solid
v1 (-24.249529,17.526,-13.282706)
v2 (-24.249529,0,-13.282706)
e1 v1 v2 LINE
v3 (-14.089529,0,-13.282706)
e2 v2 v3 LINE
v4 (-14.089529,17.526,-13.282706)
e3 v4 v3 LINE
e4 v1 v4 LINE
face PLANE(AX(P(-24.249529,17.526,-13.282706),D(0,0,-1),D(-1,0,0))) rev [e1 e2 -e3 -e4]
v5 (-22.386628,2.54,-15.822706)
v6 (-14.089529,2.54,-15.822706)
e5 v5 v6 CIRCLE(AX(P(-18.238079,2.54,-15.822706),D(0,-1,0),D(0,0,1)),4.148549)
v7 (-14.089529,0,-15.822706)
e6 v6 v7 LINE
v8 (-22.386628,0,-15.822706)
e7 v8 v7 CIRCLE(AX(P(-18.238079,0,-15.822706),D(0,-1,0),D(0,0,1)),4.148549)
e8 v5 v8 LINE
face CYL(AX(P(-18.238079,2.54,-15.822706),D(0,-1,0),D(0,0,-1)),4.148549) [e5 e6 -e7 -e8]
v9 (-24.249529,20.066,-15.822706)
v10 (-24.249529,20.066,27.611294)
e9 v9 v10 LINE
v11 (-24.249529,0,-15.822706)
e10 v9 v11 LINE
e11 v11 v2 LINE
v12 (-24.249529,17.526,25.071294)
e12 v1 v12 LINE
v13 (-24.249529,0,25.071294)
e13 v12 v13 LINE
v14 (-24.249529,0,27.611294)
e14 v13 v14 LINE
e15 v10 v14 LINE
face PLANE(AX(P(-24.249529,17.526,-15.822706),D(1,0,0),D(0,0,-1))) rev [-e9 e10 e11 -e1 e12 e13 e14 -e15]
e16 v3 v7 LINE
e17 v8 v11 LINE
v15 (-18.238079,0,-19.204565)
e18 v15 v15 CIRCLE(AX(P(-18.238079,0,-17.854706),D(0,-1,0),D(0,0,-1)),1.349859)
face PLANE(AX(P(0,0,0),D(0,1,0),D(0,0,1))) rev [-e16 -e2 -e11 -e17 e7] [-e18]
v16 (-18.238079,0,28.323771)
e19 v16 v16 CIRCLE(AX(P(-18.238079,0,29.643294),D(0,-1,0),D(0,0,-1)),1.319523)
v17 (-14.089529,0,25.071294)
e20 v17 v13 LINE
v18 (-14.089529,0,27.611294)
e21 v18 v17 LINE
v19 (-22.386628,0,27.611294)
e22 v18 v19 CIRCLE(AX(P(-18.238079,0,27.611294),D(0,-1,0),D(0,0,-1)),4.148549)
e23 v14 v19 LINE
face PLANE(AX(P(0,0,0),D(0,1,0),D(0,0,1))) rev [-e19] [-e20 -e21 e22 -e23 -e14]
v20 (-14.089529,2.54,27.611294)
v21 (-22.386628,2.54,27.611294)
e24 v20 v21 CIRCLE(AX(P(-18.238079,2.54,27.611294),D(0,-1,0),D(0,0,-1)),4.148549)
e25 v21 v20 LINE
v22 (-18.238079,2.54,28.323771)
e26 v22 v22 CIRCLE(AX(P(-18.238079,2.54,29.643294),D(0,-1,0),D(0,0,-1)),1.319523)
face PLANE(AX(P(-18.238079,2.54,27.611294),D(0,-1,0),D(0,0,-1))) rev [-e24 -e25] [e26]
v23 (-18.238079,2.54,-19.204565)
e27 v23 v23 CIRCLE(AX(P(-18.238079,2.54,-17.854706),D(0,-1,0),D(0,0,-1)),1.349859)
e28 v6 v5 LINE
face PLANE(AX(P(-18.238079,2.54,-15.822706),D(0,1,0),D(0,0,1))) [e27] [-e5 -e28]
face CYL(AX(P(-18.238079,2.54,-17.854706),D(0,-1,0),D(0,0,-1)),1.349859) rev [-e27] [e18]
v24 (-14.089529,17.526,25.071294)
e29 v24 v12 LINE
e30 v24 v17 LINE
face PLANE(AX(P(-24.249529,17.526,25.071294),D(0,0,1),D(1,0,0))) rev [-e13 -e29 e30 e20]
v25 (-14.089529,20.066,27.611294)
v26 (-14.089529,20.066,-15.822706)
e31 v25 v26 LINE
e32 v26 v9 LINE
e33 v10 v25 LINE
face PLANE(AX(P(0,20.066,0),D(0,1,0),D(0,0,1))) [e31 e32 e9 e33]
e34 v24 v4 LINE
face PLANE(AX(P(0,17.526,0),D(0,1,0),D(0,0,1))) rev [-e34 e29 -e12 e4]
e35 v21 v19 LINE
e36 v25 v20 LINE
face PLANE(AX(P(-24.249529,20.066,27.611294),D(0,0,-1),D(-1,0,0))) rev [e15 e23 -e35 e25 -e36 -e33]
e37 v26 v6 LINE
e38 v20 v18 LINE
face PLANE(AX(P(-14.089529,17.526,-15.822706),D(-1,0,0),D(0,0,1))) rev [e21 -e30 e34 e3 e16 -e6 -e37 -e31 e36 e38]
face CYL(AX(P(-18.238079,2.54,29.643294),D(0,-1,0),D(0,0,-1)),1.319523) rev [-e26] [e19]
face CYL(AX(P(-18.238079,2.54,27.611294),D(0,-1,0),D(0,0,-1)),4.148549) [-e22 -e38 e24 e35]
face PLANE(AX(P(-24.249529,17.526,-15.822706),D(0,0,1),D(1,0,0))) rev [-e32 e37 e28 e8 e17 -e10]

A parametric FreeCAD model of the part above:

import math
import FreeCAD as App
import Part
import Sketcher
from FreeCAD import Vector
Q = App.Units.Quantity


def add_polygon(sketch, points):
    """Adds a closed chain of lines whose ends are joined by coincident constraints."""
    first, n = sketch.GeometryCount, len(points)
    for a, b in zip(points, points[1:] + points[:1]):
        sketch.addGeometry(Part.LineSegment(App.Vector(*a, 0), App.Vector(*b, 0)), False)
    for i in range(n):
        sketch.addConstraint(Sketcher.Constraint("Coincident", first + i, 2, first + (i + 1) % n, 1))

doc = App.newDocument("Part")
params = doc.addObject("Spreadsheet::Sheet", "Params")
for row, (alias, value) in enumerate([
    ("sketch1_width", "0.4 in"),
    ("sketch1_height", "0.1 in"),
    ("pad1_length", "0.69 in"),
    ("sketch2_width", "0.4 in"),
    ("sketch2_height", "0.1 in"),
    ("pad2_length", "0.69 in"),
    ("sketch3_width", "0.4 in"),
    ("sketch3_height", "1.71 in"),
    ("pad3_length", "0.1 in"),
    ("pad4_length", "0.1 in"),
], start=1):
    params.set(f"A{row}", alias)
    params.set(f"B{row}", "=" + value)
    params.setAlias(f"B{row}", alias)

body = doc.addObject("PartDesign::Body", "Body")

# Sketch on XZ plane
sketch1 = doc.addObject("Sketcher::SketchObject", "Sketch")
body.addObject(sketch1)
sketch1.AttachmentSupport = (doc.XZ_Plane, [""])
sketch1.MapMode = "FlatFace"
add_polygon(sketch1, [(-24.2, -15.8), (-24.2, -13.3), (-14.1, -13.3), (-14.1, -15.8)])  # lines 0-3
sketch1.addConstraint(Sketcher.Constraint("Vertical", 0))
sketch1.addConstraint(Sketcher.Constraint("Horizontal", 1))
sketch1.addConstraint(Sketcher.Constraint("Vertical", 2))
sketch1.addConstraint(Sketcher.Constraint("Horizontal", 3))
sketch1.addConstraint(Sketcher.Constraint("DistanceX", 1, 1, 1, 2, Q("0.4 in")))
sketch1.addConstraint(Sketcher.Constraint("DistanceY", 0, 1, 0, 2, Q("0.1 in")))
sketch1.addConstraint(Sketcher.Constraint("DistanceX", 0, 2, -1, 1, Q("24.249529 mm")))
sketch1.addConstraint(Sketcher.Constraint("DistanceY", 0, 2, -1, 1, Q("13.282706 mm")))
sketch1.setExpression("Constraints[8]", "Params.sketch1_width")
sketch1.setExpression("Constraints[9]", "Params.sketch1_height")
pad1 = doc.addObject("PartDesign::Pad", "Pad")
body.addObject(pad1)
pad1.Profile = sketch1
pad1.setExpression("Length", "Params.pad1_length")
pad1.Reversed = True
body2 = doc.addObject("PartDesign::Body", "Body001")

# Sketch on XZ plane
sketch2 = doc.addObject("Sketcher::SketchObject", "Sketch001")
body2.addObject(sketch2)
sketch2.AttachmentSupport = (doc.getObject("XZ_Plane001"), [""])
sketch2.MapMode = "FlatFace"
add_polygon(sketch2, [(-24.2, 25.1), (-24.2, 27.6), (-14.1, 27.6), (-14.1, 25.1)])  # lines 0-3
sketch2.addConstraint(Sketcher.Constraint("Vertical", 0))
sketch2.addConstraint(Sketcher.Constraint("Horizontal", 1))
sketch2.addConstraint(Sketcher.Constraint("Vertical", 2))
sketch2.addConstraint(Sketcher.Constraint("Horizontal", 3))
sketch2.addConstraint(Sketcher.Constraint("DistanceX", 1, 1, 1, 2, Q("0.4 in")))
sketch2.addConstraint(Sketcher.Constraint("DistanceY", 0, 1, 0, 2, Q("0.1 in")))
sketch2.addConstraint(Sketcher.Constraint("DistanceX", 0, 2, -1, 1, Q("24.249529 mm")))
sketch2.addConstraint(Sketcher.Constraint("DistanceY", -1, 1, 0, 2, Q("27.611294 mm")))
sketch2.setExpression("Constraints[8]", "Params.sketch2_width")
sketch2.setExpression("Constraints[9]", "Params.sketch2_height")
pad2 = doc.addObject("PartDesign::Pad", "Pad001")
body2.addObject(pad2)
pad2.Profile = sketch2
pad2.setExpression("Length", "Params.pad2_length")
pad2.Reversed = True
body.AllowCompound = True
doc.recompute()

boolean = doc.addObject("PartDesign::Boolean", "Boolean")
body.addObject(boolean)
boolean.Type = "Fuse"
boolean.addObjects([body2])

# Sketch on XZ plane
sketch3 = doc.addObject("Sketcher::SketchObject", "Sketch002")
body.addObject(sketch3)
sketch3.AttachmentSupport = (doc.XZ_Plane, [""])
sketch3.MapMode = "FlatFace"
sketch3.AttachmentOffset = App.Placement(Vector(0, 0, -0.69 * 25.4), App.Rotation())
add_polygon(sketch3, [(-24, -16), (-24, 28), (-14, 28), (-14, -16)])  # lines 0-3
sketch3.addConstraint(Sketcher.Constraint("Vertical", 0))
sketch3.addConstraint(Sketcher.Constraint("Horizontal", 1))
sketch3.addConstraint(Sketcher.Constraint("Vertical", 2))
sketch3.addConstraint(Sketcher.Constraint("Horizontal", 3))
sketch3.addConstraint(Sketcher.Constraint("DistanceX", 1, 1, 1, 2, Q("0.4 in")))
sketch3.addConstraint(Sketcher.Constraint("DistanceY", 0, 1, 0, 2, Q("1.71 in")))
sketch3.addConstraint(Sketcher.Constraint("DistanceX", 0, 2, -1, 1, Q("24.249529 mm")))
sketch3.addConstraint(Sketcher.Constraint("DistanceY", -1, 1, 0, 2, Q("27.611294 mm")))
sketch3.setExpression("Constraints[8]", "Params.sketch3_width")
sketch3.setExpression("Constraints[9]", "Params.sketch3_height")
pad3 = doc.addObject("PartDesign::Pad", "Pad002")
body.addObject(pad3)
pad3.Profile = sketch3
pad3.setExpression("Length", "Params.pad3_length")
pad3.Reversed = True

# Sketch on XZ plane
sketch4 = doc.addObject("Sketcher::SketchObject", "Sketch003")
body.addObject(sketch4)
sketch4.AttachmentSupport = (doc.XZ_Plane, [""])
sketch4.MapMode = "FlatFace"
sketch4.addGeometry(Part.LineSegment(Vector(-22.4, 27.6, 0), Vector(-14.1, 27.6, 0)), False)
sketch4.addGeometry(Part.ArcOfCircle(Part.Circle(Vector(-18.2, 27.6, 0), Vector(0, 0, 1), 4.1), math.radians(0), math.radians(180)), False)
sketch4.addGeometry(Part.Circle(Vector(-18.2, 29.6, 0), Vector(0, 0, 1), 1.3), False)
sketch4.addGeometry(Part.LineSegment(Vector(-14.1, -15.8, 0), Vector(-22.4, -15.8, 0)), False)
sketch4.addGeometry(Part.ArcOfCircle(Part.Circle(Vector(-18.2, -15.8, 0), Vector(0, 0, 1), 4.1), math.radians(180), math.radians(360)), False)
sketch4.addGeometry(Part.Circle(Vector(-18.2, -17.9, 0), Vector(0, 0, 1), 1.3), False)
sketch4.addConstraint(Sketcher.Constraint("Coincident", 0, 1, 1, 2))
sketch4.addConstraint(Sketcher.Constraint("Coincident", 1, 1, 0, 2))
sketch4.addConstraint(Sketcher.Constraint("Coincident", 3, 1, 4, 2))
sketch4.addConstraint(Sketcher.Constraint("Coincident", 4, 1, 3, 2))
sketch4.addConstraint(Sketcher.Constraint("Horizontal", 0))
sketch4.addConstraint(Sketcher.Constraint("Horizontal", 3))
sketch4.addConstraint(Sketcher.Constraint("Equal", 1, 4))
sketch4.addConstraint(Sketcher.Constraint("Horizontal", 1, 3, 0, 1))
sketch4.addConstraint(Sketcher.Constraint("Horizontal", 4, 3, 3, 1))
sketch4.addConstraint(Sketcher.Constraint("Vertical", 1, 3, 2, 3))
sketch4.addConstraint(Sketcher.Constraint("Vertical", 2, 3, 4, 3))
sketch4.addConstraint(Sketcher.Constraint("Vertical", 4, 3, 5, 3))
sketch4.addConstraint(Sketcher.Constraint("DistanceY", 1, 3, 2, 3, Q("0.08 in")))
sketch4.addConstraint(Sketcher.Constraint("DistanceY", 4, 3, 1, 3, Q("1.71 in")))
sketch4.addConstraint(Sketcher.Constraint("DistanceY", 5, 3, 4, 3, Q("0.08 in")))
sketch4.addConstraint(Sketcher.Constraint("Diameter", 5, Q("2.699718 mm")))
sketch4.addConstraint(Sketcher.Constraint("Radius", 1, Q("4.148549 mm")))
sketch4.addConstraint(Sketcher.Constraint("Diameter", 2, Q("2.639045 mm")))
sketch4.addConstraint(Sketcher.Constraint("DistanceX", 1, 3, -1, 1, Q("18.238079 mm")))
sketch4.addConstraint(Sketcher.Constraint("DistanceY", -1, 1, 1, 3, Q("27.611294 mm")))
pad4 = doc.addObject("PartDesign::Pad", "Pad003")
body.addObject(pad4)
pad4.Profile = sketch4
pad4.setExpression("Length", "Params.pad4_length")
pad4.Reversed = True

doc.recompute()
